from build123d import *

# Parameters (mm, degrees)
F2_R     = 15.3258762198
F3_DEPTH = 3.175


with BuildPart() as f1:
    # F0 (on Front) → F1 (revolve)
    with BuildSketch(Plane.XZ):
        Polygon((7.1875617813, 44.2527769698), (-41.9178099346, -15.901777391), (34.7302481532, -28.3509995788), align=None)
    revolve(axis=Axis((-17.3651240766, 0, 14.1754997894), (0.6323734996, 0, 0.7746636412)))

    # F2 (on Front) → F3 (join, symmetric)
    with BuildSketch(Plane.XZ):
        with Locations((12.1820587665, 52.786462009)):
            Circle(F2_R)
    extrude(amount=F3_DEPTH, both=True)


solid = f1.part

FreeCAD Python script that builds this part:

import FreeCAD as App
import Part
import Sketcher
from FreeCAD import Vector
Q = App.Units.Quantity


def add_polygon(sketch, points):
    """Adds a closed chain of lines whose ends are joined by coincident constraints."""
    first, n = sketch.GeometryCount, len(points)
    for a, b in zip(points, points[1:] + points[:1]):
        sketch.addGeometry(Part.LineSegment(App.Vector(*a, 0), App.Vector(*b, 0)), False)
    for i in range(n):
        sketch.addConstraint(Sketcher.Constraint("Coincident", first + i, 2, first + (i + 1) % n, 1))

doc = App.newDocument("Part")
body = doc.addObject("PartDesign::Body", "Body")

# Sketch on XZ plane
sketch1 = body.newObject("Sketcher::SketchObject", "Sketch")
sketch1.AttachmentSupport = (doc.getObject("XZ_Plane"), [""])
sketch1.MapMode = "FlatFace"
add_polygon(sketch1, [(7, 44), (-42, -16), (35, -28)])  # lines 0-2
sketch1.addGeometry(Part.LineSegment(Vector(-42, -16, 0), Vector(7, 44, 0)), True)  # axis
sketch1.addConstraint([
    Sketcher.Constraint("Coincident", 3, 1, 0, 2),
    Sketcher.Constraint("Coincident", 3, 2, 2, 2),
    Sketcher.Constraint("Equal", 0, 1),
    Sketcher.Constraint("Equal", 1, 2),
    Sketcher.Constraint("DistanceY", 1, 2, -1, 1, 28.351),
    Sketcher.Constraint("Distance", 0, 77.652482),
    Sketcher.Constraint("DistanceX", 0, 2, -1, 1, 41.91781),
    Sketcher.Constraint("DistanceX", -1, 1, 1, 2, 34.730248),
])
revolution = body.newObject("PartDesign::Revolution", "Revolution")
revolution.Profile = sketch1
revolution.ReferenceAxis = (sketch1, ["Axis0"])
revolution.Angle = 360

# Sketch on XZ plane
sketch2 = body.newObject("Sketcher::SketchObject", "Sketch001")
sketch2.AttachmentSupport = (doc.getObject("XZ_Plane"), [""])
sketch2.MapMode = "FlatFace"
sketch2.addGeometry(Part.Circle(Vector(12, 53, 0), Vector(0, 0, 1), 15), False)
sketch2.addConstraint([
    Sketcher.Constraint("Diameter", 0, 30.651752),
    Sketcher.Constraint("DistanceX", -1, 1, 0, 3, 12.182059),
    Sketcher.Constraint("DistanceY", -1, 1, 0, 3, 52.786462),
])
pad1 = body.newObject("PartDesign::Pad", "Pad")
pad1.Profile = sketch2
pad1.Length = Q("0.25 in")
pad1.Midplane = True

doc.recompute()
